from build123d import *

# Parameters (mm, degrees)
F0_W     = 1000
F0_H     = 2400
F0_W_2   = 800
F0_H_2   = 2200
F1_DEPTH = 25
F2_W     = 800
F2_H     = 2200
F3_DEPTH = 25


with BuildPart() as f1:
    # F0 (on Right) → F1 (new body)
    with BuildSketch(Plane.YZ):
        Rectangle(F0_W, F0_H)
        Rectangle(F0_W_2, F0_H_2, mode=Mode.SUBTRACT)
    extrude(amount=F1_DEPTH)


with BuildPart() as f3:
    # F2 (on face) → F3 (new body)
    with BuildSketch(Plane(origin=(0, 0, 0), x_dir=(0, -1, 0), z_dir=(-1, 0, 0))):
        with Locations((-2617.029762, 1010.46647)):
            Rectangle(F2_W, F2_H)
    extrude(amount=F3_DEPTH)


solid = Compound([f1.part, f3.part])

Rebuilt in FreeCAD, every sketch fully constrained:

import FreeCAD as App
import Part
import Sketcher
from FreeCAD import Vector

doc = App.newDocument("Part")
params = doc.addObject("Spreadsheet::Sheet", "Params")
for row, (alias, value) in enumerate([
    ("sketch1_width", "1000 mm"),
    ("sketch1_width2", "800 mm"),
    ("sketch1_height", "2400 mm"),
    ("sketch1_height2", "2200 mm"),
    ("pad1_length", "25 mm"),
    ("sketch2_width", "800 mm"),
    ("sketch2_height", "2200 mm"),
    ("pad2_length", "25 mm"),
], start=1):
    params.set(f"A{row}", alias)
    params.set(f"B{row}", "=" + value)
    params.setAlias(f"B{row}", alias)

body = doc.addObject("PartDesign::Body", "Body")

sketch1 = body.newObject("Sketcher::SketchObject", "Sketch")
sketch1.AttachmentSupport = (doc.getObject("YZ_Plane"), [""])
sketch1.MapMode = "FlatFace"
sketch1.addGeometry([
    Part.LineSegment(Vector(-500, 1200, 0), Vector(-500, -1200, 0)),
    Part.LineSegment(Vector(-500, -1200, 0), Vector(500, -1200, 0)),
    Part.LineSegment(Vector(500, -1200, 0), Vector(500, 1200, 0)),
    Part.LineSegment(Vector(500, 1200, 0), Vector(-500, 1200, 0)),
    Part.LineSegment(Vector(400, -1100, 0), Vector(-400, -1100, 0)),
    Part.LineSegment(Vector(-400, -1100, 0), Vector(-400, 1100, 0)),
    Part.LineSegment(Vector(-400, 1100, 0), Vector(400, 1100, 0)),
    Part.LineSegment(Vector(400, 1100, 0), Vector(400, -1100, 0)),
], False)
sketch1.addConstraint([
    Sketcher.Constraint("Coincident", 0, 2, 1, 1),
    Sketcher.Constraint("Coincident", 1, 2, 2, 1),
    Sketcher.Constraint("Coincident", 2, 2, 3, 1),
    Sketcher.Constraint("Coincident", 3, 2, 0, 1),
    Sketcher.Constraint("Coincident", 4, 2, 5, 1),
    Sketcher.Constraint("Coincident", 5, 2, 6, 1),
    Sketcher.Constraint("Coincident", 6, 2, 7, 1),
    Sketcher.Constraint("Coincident", 7, 2, 4, 1),
    Sketcher.Constraint("Vertical", 0),
    Sketcher.Constraint("Horizontal", 1),
    Sketcher.Constraint("Vertical", 2),
    Sketcher.Constraint("Horizontal", 3),
    Sketcher.Constraint("Horizontal", 4),
    Sketcher.Constraint("Vertical", 5),
    Sketcher.Constraint("Horizontal", 6),
    Sketcher.Constraint("Vertical", 7),
    Sketcher.Constraint("Symmetric", 0, 2, 2, 2, -1, 1),
    Sketcher.Constraint("Symmetric", 4, 2, 6, 2, -1, 1),
    Sketcher.Constraint("DistanceX", 1, 1, 1, 2, 1000.0),
    Sketcher.Constraint("DistanceX", 4, 2, 4, 1, 800.0),
    Sketcher.Constraint("DistanceY", 0, 2, 0, 1, 2400.0),
    Sketcher.Constraint("DistanceY", 5, 1, 5, 2, 2200.0),
])
sketch1.setExpression("Constraints[18]", "Params.sketch1_width")
sketch1.setExpression("Constraints[19]", "Params.sketch1_width2")
sketch1.setExpression("Constraints[20]", "Params.sketch1_height")
sketch1.setExpression("Constraints[21]", "Params.sketch1_height2")
pad1 = body.newObject("PartDesign::Pad", "Pad")
pad1.Profile = sketch1
pad1.setExpression("Length", "Params.pad1_length")
body2 = doc.addObject("PartDesign::Body", "Body001")

sketch2 = body2.newObject("Sketcher::SketchObject", "Sketch001")
sketch2.AttachmentSupport = (doc.getObject("YZ_Plane001"), [""])
sketch2.MapMode = "FlatFace"
sketch2.addGeometry([
    Part.LineSegment(Vector(3017, 2110, 0), Vector(3017, -90, 0)),
    Part.LineSegment(Vector(3017, -90, 0), Vector(2217, -90, 0)),
    Part.LineSegment(Vector(2217, -90, 0), Vector(2217, 2110, 0)),
    Part.LineSegment(Vector(2217, 2110, 0), Vector(3017, 2110, 0)),
], False)
sketch2.addConstraint([
    Sketcher.Constraint("Coincident", 0, 2, 1, 1),
    Sketcher.Constraint("Coincident", 1, 2, 2, 1),
    Sketcher.Constraint("Coincident", 2, 2, 3, 1),
    Sketcher.Constraint("Coincident", 3, 2, 0, 1),
    Sketcher.Constraint("Vertical", 0),
    Sketcher.Constraint("Horizontal", 1),
    Sketcher.Constraint("Vertical", 2),
    Sketcher.Constraint("Horizontal", 3),
    Sketcher.Constraint("DistanceX", 1, 2, 1, 1, 800.0),
    Sketcher.Constraint("DistanceY", 0, 2, 0, 1, 2200.0),
    Sketcher.Constraint("DistanceY", 0, 2, -1, 1, 89.53353),
    Sketcher.Constraint("DistanceX", -1, 1, 0, 2, 3017.029762),
])
sketch2.setExpression("Constraints[8]", "Params.sketch2_width")
sketch2.setExpression("Constraints[9]", "Params.sketch2_height")
pad2 = body2.newObject("PartDesign::Pad", "Pad001")
pad2.Profile = sketch2
pad2.setExpression("Length", "Params.pad2_length")
pad2.Reversed = True

doc.recompute()
